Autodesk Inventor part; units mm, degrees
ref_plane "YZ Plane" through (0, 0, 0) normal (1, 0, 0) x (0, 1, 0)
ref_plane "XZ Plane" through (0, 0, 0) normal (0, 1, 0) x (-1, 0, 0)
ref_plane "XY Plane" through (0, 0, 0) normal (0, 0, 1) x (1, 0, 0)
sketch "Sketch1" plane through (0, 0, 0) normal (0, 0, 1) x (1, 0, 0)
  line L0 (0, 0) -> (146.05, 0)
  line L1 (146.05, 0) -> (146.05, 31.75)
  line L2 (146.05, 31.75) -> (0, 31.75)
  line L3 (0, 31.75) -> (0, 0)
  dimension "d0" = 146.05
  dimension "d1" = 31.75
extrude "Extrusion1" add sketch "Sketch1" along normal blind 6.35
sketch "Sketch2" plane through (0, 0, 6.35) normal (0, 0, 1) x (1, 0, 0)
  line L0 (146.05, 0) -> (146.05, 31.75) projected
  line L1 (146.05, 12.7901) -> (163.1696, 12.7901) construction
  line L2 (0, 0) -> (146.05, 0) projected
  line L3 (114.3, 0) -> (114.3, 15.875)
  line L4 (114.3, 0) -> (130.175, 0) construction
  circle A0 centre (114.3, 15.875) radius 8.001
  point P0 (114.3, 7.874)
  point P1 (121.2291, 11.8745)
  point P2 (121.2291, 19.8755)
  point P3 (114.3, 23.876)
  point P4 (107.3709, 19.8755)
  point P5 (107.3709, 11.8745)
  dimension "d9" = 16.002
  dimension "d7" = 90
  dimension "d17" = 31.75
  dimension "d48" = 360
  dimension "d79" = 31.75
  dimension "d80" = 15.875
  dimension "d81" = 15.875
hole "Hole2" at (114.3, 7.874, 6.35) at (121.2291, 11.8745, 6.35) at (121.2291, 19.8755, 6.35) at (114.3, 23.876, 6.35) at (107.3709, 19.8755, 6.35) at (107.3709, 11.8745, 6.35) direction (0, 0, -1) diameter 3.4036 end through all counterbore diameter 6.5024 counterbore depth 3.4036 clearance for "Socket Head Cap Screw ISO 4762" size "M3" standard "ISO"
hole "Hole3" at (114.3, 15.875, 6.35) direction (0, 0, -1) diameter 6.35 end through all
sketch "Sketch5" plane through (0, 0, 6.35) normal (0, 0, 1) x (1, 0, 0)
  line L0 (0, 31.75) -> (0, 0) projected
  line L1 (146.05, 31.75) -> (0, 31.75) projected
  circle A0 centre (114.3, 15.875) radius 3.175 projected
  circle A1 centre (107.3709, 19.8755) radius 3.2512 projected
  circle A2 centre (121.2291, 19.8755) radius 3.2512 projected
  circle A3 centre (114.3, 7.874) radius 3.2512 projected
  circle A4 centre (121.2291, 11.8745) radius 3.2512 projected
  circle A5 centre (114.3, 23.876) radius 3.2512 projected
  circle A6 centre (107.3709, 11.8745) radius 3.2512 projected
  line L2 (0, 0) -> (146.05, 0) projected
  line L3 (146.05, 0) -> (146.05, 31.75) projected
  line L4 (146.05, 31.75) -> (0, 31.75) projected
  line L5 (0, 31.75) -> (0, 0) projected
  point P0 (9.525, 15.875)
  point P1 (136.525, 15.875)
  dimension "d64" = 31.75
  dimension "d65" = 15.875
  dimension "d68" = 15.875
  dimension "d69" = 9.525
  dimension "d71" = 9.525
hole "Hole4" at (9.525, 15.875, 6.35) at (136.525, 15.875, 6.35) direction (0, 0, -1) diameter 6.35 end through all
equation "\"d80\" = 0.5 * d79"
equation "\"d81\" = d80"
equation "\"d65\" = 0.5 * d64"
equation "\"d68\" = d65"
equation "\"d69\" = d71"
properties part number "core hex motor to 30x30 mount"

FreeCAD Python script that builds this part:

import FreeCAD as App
import Part
import Sketcher
Q = App.Units.Quantity


def add_polygon(sketch, points):
    """Adds a closed chain of lines whose ends are joined by coincident constraints."""
    first, n = sketch.GeometryCount, len(points)
    for a, b in zip(points, points[1:] + points[:1]):
        sketch.addGeometry(Part.LineSegment(App.Vector(*a, 0), App.Vector(*b, 0)), False)
    for i in range(n):
        sketch.addConstraint(Sketcher.Constraint("Coincident", first + i, 2, first + (i + 1) % n, 1))

doc = App.newDocument("Part")
params = doc.addObject("Spreadsheet::Sheet", "Params")
for row, (alias, value) in enumerate([
    ("sketch1_width", "5.75 in"),
    ("sketch1_height", "1.25 in"),
    ("pad1_length", "0.25 in"),
    ("sketch2_diameter", "0.134 in"),
    ("hole_diameter", "0.134 in"),
    ("hole_cbore_diameter", "0.256 in"),
    ("hole_cbore_depth", "0.134 in"),
    ("sketch3_diameter", "0.25 in"),
    ("hole2_diameter", "0.25 in"),
    ("sketch4_diameter", "0.25 in"),
    ("hole3_diameter", "0.25 in"),
], start=1):
    params.set(f"A{row}", alias)
    params.set(f"B{row}", "=" + value)
    params.setAlias(f"B{row}", alias)

body = doc.addObject("PartDesign::Body", "Body")

# Sketch on XY plane
sketch1 = body.newObject("Sketcher::SketchObject", "Sketch")
sketch1.AttachmentSupport = (doc.getObject("XY_Plane"), [""])
sketch1.MapMode = "FlatFace"
add_polygon(sketch1, [(0, 32), (0, 0), (146, 0), (146, 32)])  # lines 0-3
sketch1.addConstraint(Sketcher.Constraint("Vertical", 0))
sketch1.addConstraint(Sketcher.Constraint("Horizontal", 1))
sketch1.addConstraint(Sketcher.Constraint("Vertical", 2))
sketch1.addConstraint(Sketcher.Constraint("Horizontal", 3))
sketch1.addConstraint(Sketcher.Constraint("Coincident", 0, 2, -1, 1))
sketch1.addConstraint(Sketcher.Constraint("DistanceX", 1, 1, 1, 2, Q("5.75 in")))
sketch1.addConstraint(Sketcher.Constraint("DistanceY", 0, 2, 0, 1, Q("1.25 in")))
sketch1.setExpression("Constraints[9]", "Params.sketch1_width")
sketch1.setExpression("Constraints[10]", "Params.sketch1_height")
pad1 = body.newObject("PartDesign::Pad", "Pad")
pad1.Profile = sketch1
pad1.setExpression("Length", "Params.pad1_length")

# Sketch on XY plane
sketch2 = body.newObject("Sketcher::SketchObject", "Sketch001")
sketch2.AttachmentSupport = (doc.getObject("XY_Plane"), [""])
sketch2.MapMode = "FlatFace"
sketch2.AttachmentOffset = App.Placement(App.Vector(0, 0, 0.25 * 25.4), App.Rotation())
sketch2.addGeometry(Part.Circle(App.Vector(114.3, 7.9, 0), App.Vector(0, 0, 1), 1.7), False)
sketch2.addGeometry(Part.Circle(App.Vector(121.2, 11.9, 0), App.Vector(0, 0, 1), 1.7), False)
sketch2.addGeometry(Part.Circle(App.Vector(121.2, 19.9, 0), App.Vector(0, 0, 1), 1.7), False)
sketch2.addGeometry(Part.Circle(App.Vector(114.3, 23.9, 0), App.Vector(0, 0, 1), 1.7), False)
sketch2.addGeometry(Part.Circle(App.Vector(107.4, 19.9, 0), App.Vector(0, 0, 1), 1.7), False)
sketch2.addGeometry(Part.Circle(App.Vector(107.4, 11.9, 0), App.Vector(0, 0, 1), 1.7), False)
sketch2.addConstraint(Sketcher.Constraint("Equal", 0, 1))
sketch2.addConstraint(Sketcher.Constraint("Equal", 1, 2))
sketch2.addConstraint(Sketcher.Constraint("Equal", 2, 3))
sketch2.addConstraint(Sketcher.Constraint("Equal", 3, 4))
sketch2.addConstraint(Sketcher.Constraint("Equal", 4, 5))
sketch2.addConstraint(Sketcher.Constraint("Horizontal", 2, 3, 4, 3))
sketch2.addConstraint(Sketcher.Constraint("Horizontal", 1, 3, 5, 3))
sketch2.addConstraint(Sketcher.Constraint("Vertical", 1, 3, 2, 3))
sketch2.addConstraint(Sketcher.Constraint("Vertical", 0, 3, 3, 3))
sketch2.addConstraint(Sketcher.Constraint("Vertical", 4, 3, 5, 3))
sketch2.addConstraint(Sketcher.Constraint("Diameter", 0, Q("0.134 in")))
sketch2.addConstraint(Sketcher.Constraint("DistanceX", -1, 1, 0, 3, Q("4.5 in")))
sketch2.addConstraint(Sketcher.Constraint("DistanceY", -1, 1, 0, 3, Q("0.31 in")))
sketch2.addConstraint(Sketcher.Constraint("DistanceY", -1, 1, 3, 3, Q("0.94 in")))
sketch2.addConstraint(Sketcher.Constraint("DistanceY", 1, 3, 2, 3, Q("0.315 in")))
sketch2.addConstraint(Sketcher.Constraint("DistanceX", -1, 1, 1, 3, Q("4.7728 in")))
sketch2.addConstraint(Sketcher.Constraint("DistanceY", -1, 1, 1, 3, Q("0.4675 in")))
sketch2.addConstraint(Sketcher.Constraint("DistanceX", -1, 1, 4, 3, Q("4.2272 in")))
sketch2.setExpression("Constraints[10]", "Params.sketch2_diameter")
doc.recompute()
hole = body.newObject("PartDesign::Hole", "Hole")
hole.Profile = sketch2
hole.ThreadType = "None"
hole.setExpression("Diameter", "Params.hole_diameter")
hole.DepthType = "ThroughAll"
hole.HoleCutType = "Counterbore"
hole.setExpression("HoleCutDiameter", "Params.hole_cbore_diameter")
hole.setExpression("HoleCutDepth", "Params.hole_cbore_depth")

# Sketch on XY plane
sketch3 = body.newObject("Sketcher::SketchObject", "Sketch002")
sketch3.AttachmentSupport = (doc.getObject("XY_Plane"), [""])
sketch3.MapMode = "FlatFace"
sketch3.AttachmentOffset = App.Placement(App.Vector(0, 0, 0.25 * 25.4), App.Rotation())
sketch3.addGeometry(Part.Circle(App.Vector(114.3, 15.9, 0), App.Vector(0, 0, 1), 3.2), False)
sketch3.addConstraint(Sketcher.Constraint("Diameter", 0, Q("0.25 in")))
sketch3.addConstraint(Sketcher.Constraint("DistanceX", -1, 1, 0, 3, Q("4.5 in")))
sketch3.addConstraint(Sketcher.Constraint("DistanceY", -1, 1, 0, 3, Q("0.625 in")))
sketch3.setExpression("Constraints[0]", "Params.sketch3_diameter")
doc.recompute()
hole2 = body.newObject("PartDesign::Hole", "Hole001")
hole2.Profile = sketch3
hole2.ThreadType = "None"
hole2.setExpression("Diameter", "Params.hole2_diameter")
hole2.DepthType = "ThroughAll"

# Sketch on XY plane
sketch4 = body.newObject("Sketcher::SketchObject", "Sketch003")
sketch4.AttachmentSupport = (doc.getObject("XY_Plane"), [""])
sketch4.MapMode = "FlatFace"
sketch4.AttachmentOffset = App.Placement(App.Vector(0, 0, 0.25 * 25.4), App.Rotation())
sketch4.addGeometry(Part.Circle(App.Vector(9.5, 15.9, 0), App.Vector(0, 0, 1), 3.2), False)
sketch4.addGeometry(Part.Circle(App.Vector(136.5, 15.9, 0), App.Vector(0, 0, 1), 3.2), False)
sketch4.addConstraint(Sketcher.Constraint("Equal", 0, 1))
sketch4.addConstraint(Sketcher.Constraint("Horizontal", 0, 3, 1, 3))
sketch4.addConstraint(Sketcher.Constraint("Diameter", 0, Q("0.25 in")))
sketch4.addConstraint(Sketcher.Constraint("DistanceX", 0, 3, 1, 3, Q("5 in")))
sketch4.addConstraint(Sketcher.Constraint("DistanceX", -1, 1, 0, 3, Q("0.375 in")))
sketch4.addConstraint(Sketcher.Constraint("DistanceY", -1, 1, 0, 3, Q("0.625 in")))
sketch4.setExpression("Constraints[2]", "Params.sketch4_diameter")
doc.recompute()
hole3 = body.newObject("PartDesign::Hole", "Hole002")
hole3.Profile = sketch4
hole3.ThreadType = "None"
hole3.setExpression("Diameter", "Params.hole3_diameter")
hole3.DepthType = "ThroughAll"

doc.recompute()
